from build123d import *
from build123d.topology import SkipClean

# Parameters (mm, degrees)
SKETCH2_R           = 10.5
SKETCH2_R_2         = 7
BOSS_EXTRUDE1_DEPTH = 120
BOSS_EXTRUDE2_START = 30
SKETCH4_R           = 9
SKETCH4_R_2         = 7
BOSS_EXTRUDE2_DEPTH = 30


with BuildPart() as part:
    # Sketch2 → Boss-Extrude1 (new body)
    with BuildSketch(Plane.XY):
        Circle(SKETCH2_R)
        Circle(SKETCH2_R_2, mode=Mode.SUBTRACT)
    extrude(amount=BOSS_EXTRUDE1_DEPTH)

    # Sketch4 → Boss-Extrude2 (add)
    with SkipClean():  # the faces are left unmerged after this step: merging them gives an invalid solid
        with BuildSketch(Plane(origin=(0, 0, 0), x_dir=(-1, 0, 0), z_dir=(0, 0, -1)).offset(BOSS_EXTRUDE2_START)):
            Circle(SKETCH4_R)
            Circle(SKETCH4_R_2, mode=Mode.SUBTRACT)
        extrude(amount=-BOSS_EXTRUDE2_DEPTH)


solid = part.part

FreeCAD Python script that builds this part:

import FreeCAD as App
import Part
import Sketcher
from FreeCAD import Vector

doc = App.newDocument("Part")
body = doc.addObject("PartDesign::Body", "Body")

sketch1 = doc.addObject("Sketcher::SketchObject", "Sketch")
body.addObject(sketch1)
sketch1.AttachmentSupport = (doc.XY_Plane, [""])
sketch1.MapMode = "FlatFace"
sketch1.addGeometry(Part.Circle(Vector(0, 0, 0), Vector(0, 0, 1), 10), False)
sketch1.addGeometry(Part.Circle(Vector(0, 0, 0), Vector(0, 0, 1), 7), False)
sketch1.addConstraint(Sketcher.Constraint("Coincident", 0, 3, -1, 1))
sketch1.addConstraint(Sketcher.Constraint("Coincident", 1, 3, -1, 1))
sketch1.addConstraint(Sketcher.Constraint("Diameter", 0, 21.0))
sketch1.addConstraint(Sketcher.Constraint("Diameter", 1, 14.0))
pad1 = doc.addObject("PartDesign::Pad", "Pad")
body.addObject(pad1)
pad1.Profile = sketch1
pad1.Length = 120

sketch2 = doc.addObject("Sketcher::SketchObject", "Sketch001")
body.addObject(sketch2)
sketch2.AttachmentSupport = (doc.XY_Plane, [""])
sketch2.MapMode = "FlatFace"
sketch2.AttachmentOffset = App.Placement(Vector(0, 0, -30), App.Rotation())
sketch2.addGeometry(Part.Circle(Vector(0, 0, 0), Vector(0, 0, 1), 9), False)
sketch2.addGeometry(Part.Circle(Vector(0, 0, 0), Vector(0, 0, 1), 7), False)
sketch2.addConstraint(Sketcher.Constraint("Coincident", 0, 3, -1, 1))
sketch2.addConstraint(Sketcher.Constraint("Coincident", 1, 3, -1, 1))
sketch2.addConstraint(Sketcher.Constraint("Diameter", 0, 18.0))
sketch2.addConstraint(Sketcher.Constraint("Diameter", 1, 14.0))
pad2 = doc.addObject("PartDesign::Pad", "Pad001")
body.addObject(pad2)
pad2.Profile = sketch2
pad2.Length = 30

doc.recompute()
